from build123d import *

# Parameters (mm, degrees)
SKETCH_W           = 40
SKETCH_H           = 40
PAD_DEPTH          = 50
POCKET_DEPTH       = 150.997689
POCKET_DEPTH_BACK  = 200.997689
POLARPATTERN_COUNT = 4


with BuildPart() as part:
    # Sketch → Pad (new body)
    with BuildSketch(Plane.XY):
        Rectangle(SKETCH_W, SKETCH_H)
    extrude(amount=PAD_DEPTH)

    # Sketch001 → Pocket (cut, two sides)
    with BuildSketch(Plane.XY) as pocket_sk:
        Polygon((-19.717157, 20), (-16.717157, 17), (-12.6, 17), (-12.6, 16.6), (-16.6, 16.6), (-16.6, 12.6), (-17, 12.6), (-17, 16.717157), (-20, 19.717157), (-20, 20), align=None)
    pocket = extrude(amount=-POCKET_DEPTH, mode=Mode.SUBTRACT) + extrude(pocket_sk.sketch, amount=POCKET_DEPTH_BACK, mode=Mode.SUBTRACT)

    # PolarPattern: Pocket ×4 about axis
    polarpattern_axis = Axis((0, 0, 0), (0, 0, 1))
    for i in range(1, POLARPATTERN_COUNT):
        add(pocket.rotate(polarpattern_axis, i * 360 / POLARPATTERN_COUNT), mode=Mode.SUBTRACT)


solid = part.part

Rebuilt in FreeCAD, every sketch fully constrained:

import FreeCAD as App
import Part
import Sketcher

V = App.Vector
Q = App.Units.Quantity

doc = App.newDocument("Part")
params = doc.addObject("Spreadsheet::Sheet", "Params")
for row, (alias, value) in enumerate([
    ("sketch1_width", "40 mm"),
    ("pad1_length", "50 mm"),
    ("sketch2_width", "4 mm"),
    ("sketch2_width2", "0.4 mm"),
], start=1):
    params.set(f"A{row}", alias)
    params.set(f"B{row}", "=" + value)
    params.setAlias(f"B{row}", alias)

body = doc.addObject("PartDesign::Body", "Body")

sketch1 = body.newObject("Sketcher::SketchObject", "Sketch")
sketch1.AttachmentSupport = (doc.getObject("XY_Plane"), [""])
sketch1.MapMode = "FlatFace"
sketch1.addGeometry([
    Part.LineSegment(V(-20, 20, 0), V(-20, -20, 0)),
    Part.LineSegment(V(-20, -20, 0), V(20, -20, 0)),
    Part.LineSegment(V(20, -20, 0), V(20, 20, 0)),
    Part.LineSegment(V(20, 20, 0), V(-20, 20, 0)),
], False)
sketch1.addConstraint([
    Sketcher.Constraint("Coincident", 0, 2, 1, 1),
    Sketcher.Constraint("Coincident", 1, 2, 2, 1),
    Sketcher.Constraint("Coincident", 2, 2, 3, 1),
    Sketcher.Constraint("Coincident", 3, 2, 0, 1),
    Sketcher.Constraint("Vertical", 0),
    Sketcher.Constraint("Horizontal", 1),
    Sketcher.Constraint("Vertical", 2),
    Sketcher.Constraint("Horizontal", 3),
    Sketcher.Constraint("Symmetric", 0, 2, 2, 2, -1, 1),
    Sketcher.Constraint("Equal", 3, 0),
    Sketcher.Constraint("DistanceX", 1, 1, 1, 2, Q("40 mm")),
])
sketch1.setExpression("Constraints[10]", "Params.sketch1_width")
pad1 = body.newObject("PartDesign::Pad", "Pad")
pad1.Profile = sketch1
pad1.setExpression("Length", "Params.pad1_length")

sketch2 = body.newObject("Sketcher::SketchObject", "Sketch001")
sketch2.AttachmentSupport = (doc.getObject("XY_Plane"), [""])
sketch2.MapMode = "FlatFace"
sketch2.addGeometry([
    Part.LineSegment(V(-16.717157, 17, 0), V(-19.717157, 20, 0)),
    Part.LineSegment(V(-19.717157, 20, 0), V(-20, 20, 0)),
    Part.LineSegment(V(-20, 20, 0), V(-20, 19.717157, 0)),
    Part.LineSegment(V(-20, 19.717157, 0), V(-17, 16.717157, 0)),
    Part.LineSegment(V(-17, 16.717157, 0), V(-17, 12.6, 0)),
    Part.LineSegment(V(-17, 12.6, 0), V(-16.6, 12.6, 0)),
    Part.LineSegment(V(-16.6, 12.6, 0), V(-16.6, 16.6, 0)),
    Part.LineSegment(V(-16.6, 16.6, 0), V(-12.6, 16.6, 0)),
    Part.LineSegment(V(-12.6, 16.6, 0), V(-12.6, 17, 0)),
    Part.LineSegment(V(-12.6, 17, 0), V(-16.717157, 17, 0)),
], False)
sketch2.addConstraint([
    Sketcher.Constraint("Coincident", 0, 2, 1, 1),
    Sketcher.Constraint("Coincident", 1, 2, 2, 1),
    Sketcher.Constraint("Coincident", 2, 2, 3, 1),
    Sketcher.Constraint("Coincident", 3, 2, 4, 1),
    Sketcher.Constraint("Coincident", 4, 2, 5, 1),
    Sketcher.Constraint("Coincident", 5, 2, 6, 1),
    Sketcher.Constraint("Coincident", 6, 2, 7, 1),
    Sketcher.Constraint("Coincident", 7, 2, 8, 1),
    Sketcher.Constraint("Coincident", 8, 2, 9, 1),
    Sketcher.Constraint("Coincident", 9, 2, 0, 1),
    Sketcher.Constraint("Horizontal", 1),
    Sketcher.Constraint("Vertical", 2),
    Sketcher.Constraint("Vertical", 4),
    Sketcher.Constraint("Horizontal", 5),
    Sketcher.Constraint("Vertical", 6),
    Sketcher.Constraint("Horizontal", 7),
    Sketcher.Constraint("Vertical", 8),
    Sketcher.Constraint("Horizontal", 9),
    Sketcher.Constraint("Parallel", 0, 3),
    Sketcher.Constraint("Equal", 1, 2),
    Sketcher.Constraint("Equal", 9, 4),
    Sketcher.Constraint("Equal", 7, 6),
    Sketcher.Constraint("Equal", 5, 8),
    Sketcher.Constraint("DistanceX", 7, 1, 7, 2, Q("4 mm")),
    Sketcher.Constraint("Angle", 0, Q("135 deg")),
    Sketcher.Constraint("DistanceX", 5, 1, 5, 2, Q("0.4 mm")),
    Sketcher.Constraint("DistanceY", -1, 1, 0, 2, Q("20 mm")),
    Sketcher.Constraint("DistanceX", 1, 2, -1, 1, Q("20 mm")),
    Sketcher.Constraint("DistanceX", 3, 2, -1, 1, Q("17 mm")),
    Sketcher.Constraint("DistanceX", 1, 2, 1, 1, Q("0.282843 mm")),
])
sketch2.setExpression("Constraints[23]", "Params.sketch2_width")
sketch2.setExpression("Constraints[25]", "Params.sketch2_width2")
pocket1 = body.newObject("PartDesign::Pocket", "Pocket")
pocket1.Profile = sketch2
pocket1.Type = "ThroughAll"
pocket1.Midplane = True
doc.recompute()

polarpattern = body.newObject("PartDesign::PolarPattern", "PolarPattern")
polarpattern.Originals = [pocket1]
polarpattern.Axis = (doc.getObject("Z_Axis"), [""])
polarpattern.Angle = 360
polarpattern.Occurrences = 4
body.Tip = polarpattern

doc.recompute()
